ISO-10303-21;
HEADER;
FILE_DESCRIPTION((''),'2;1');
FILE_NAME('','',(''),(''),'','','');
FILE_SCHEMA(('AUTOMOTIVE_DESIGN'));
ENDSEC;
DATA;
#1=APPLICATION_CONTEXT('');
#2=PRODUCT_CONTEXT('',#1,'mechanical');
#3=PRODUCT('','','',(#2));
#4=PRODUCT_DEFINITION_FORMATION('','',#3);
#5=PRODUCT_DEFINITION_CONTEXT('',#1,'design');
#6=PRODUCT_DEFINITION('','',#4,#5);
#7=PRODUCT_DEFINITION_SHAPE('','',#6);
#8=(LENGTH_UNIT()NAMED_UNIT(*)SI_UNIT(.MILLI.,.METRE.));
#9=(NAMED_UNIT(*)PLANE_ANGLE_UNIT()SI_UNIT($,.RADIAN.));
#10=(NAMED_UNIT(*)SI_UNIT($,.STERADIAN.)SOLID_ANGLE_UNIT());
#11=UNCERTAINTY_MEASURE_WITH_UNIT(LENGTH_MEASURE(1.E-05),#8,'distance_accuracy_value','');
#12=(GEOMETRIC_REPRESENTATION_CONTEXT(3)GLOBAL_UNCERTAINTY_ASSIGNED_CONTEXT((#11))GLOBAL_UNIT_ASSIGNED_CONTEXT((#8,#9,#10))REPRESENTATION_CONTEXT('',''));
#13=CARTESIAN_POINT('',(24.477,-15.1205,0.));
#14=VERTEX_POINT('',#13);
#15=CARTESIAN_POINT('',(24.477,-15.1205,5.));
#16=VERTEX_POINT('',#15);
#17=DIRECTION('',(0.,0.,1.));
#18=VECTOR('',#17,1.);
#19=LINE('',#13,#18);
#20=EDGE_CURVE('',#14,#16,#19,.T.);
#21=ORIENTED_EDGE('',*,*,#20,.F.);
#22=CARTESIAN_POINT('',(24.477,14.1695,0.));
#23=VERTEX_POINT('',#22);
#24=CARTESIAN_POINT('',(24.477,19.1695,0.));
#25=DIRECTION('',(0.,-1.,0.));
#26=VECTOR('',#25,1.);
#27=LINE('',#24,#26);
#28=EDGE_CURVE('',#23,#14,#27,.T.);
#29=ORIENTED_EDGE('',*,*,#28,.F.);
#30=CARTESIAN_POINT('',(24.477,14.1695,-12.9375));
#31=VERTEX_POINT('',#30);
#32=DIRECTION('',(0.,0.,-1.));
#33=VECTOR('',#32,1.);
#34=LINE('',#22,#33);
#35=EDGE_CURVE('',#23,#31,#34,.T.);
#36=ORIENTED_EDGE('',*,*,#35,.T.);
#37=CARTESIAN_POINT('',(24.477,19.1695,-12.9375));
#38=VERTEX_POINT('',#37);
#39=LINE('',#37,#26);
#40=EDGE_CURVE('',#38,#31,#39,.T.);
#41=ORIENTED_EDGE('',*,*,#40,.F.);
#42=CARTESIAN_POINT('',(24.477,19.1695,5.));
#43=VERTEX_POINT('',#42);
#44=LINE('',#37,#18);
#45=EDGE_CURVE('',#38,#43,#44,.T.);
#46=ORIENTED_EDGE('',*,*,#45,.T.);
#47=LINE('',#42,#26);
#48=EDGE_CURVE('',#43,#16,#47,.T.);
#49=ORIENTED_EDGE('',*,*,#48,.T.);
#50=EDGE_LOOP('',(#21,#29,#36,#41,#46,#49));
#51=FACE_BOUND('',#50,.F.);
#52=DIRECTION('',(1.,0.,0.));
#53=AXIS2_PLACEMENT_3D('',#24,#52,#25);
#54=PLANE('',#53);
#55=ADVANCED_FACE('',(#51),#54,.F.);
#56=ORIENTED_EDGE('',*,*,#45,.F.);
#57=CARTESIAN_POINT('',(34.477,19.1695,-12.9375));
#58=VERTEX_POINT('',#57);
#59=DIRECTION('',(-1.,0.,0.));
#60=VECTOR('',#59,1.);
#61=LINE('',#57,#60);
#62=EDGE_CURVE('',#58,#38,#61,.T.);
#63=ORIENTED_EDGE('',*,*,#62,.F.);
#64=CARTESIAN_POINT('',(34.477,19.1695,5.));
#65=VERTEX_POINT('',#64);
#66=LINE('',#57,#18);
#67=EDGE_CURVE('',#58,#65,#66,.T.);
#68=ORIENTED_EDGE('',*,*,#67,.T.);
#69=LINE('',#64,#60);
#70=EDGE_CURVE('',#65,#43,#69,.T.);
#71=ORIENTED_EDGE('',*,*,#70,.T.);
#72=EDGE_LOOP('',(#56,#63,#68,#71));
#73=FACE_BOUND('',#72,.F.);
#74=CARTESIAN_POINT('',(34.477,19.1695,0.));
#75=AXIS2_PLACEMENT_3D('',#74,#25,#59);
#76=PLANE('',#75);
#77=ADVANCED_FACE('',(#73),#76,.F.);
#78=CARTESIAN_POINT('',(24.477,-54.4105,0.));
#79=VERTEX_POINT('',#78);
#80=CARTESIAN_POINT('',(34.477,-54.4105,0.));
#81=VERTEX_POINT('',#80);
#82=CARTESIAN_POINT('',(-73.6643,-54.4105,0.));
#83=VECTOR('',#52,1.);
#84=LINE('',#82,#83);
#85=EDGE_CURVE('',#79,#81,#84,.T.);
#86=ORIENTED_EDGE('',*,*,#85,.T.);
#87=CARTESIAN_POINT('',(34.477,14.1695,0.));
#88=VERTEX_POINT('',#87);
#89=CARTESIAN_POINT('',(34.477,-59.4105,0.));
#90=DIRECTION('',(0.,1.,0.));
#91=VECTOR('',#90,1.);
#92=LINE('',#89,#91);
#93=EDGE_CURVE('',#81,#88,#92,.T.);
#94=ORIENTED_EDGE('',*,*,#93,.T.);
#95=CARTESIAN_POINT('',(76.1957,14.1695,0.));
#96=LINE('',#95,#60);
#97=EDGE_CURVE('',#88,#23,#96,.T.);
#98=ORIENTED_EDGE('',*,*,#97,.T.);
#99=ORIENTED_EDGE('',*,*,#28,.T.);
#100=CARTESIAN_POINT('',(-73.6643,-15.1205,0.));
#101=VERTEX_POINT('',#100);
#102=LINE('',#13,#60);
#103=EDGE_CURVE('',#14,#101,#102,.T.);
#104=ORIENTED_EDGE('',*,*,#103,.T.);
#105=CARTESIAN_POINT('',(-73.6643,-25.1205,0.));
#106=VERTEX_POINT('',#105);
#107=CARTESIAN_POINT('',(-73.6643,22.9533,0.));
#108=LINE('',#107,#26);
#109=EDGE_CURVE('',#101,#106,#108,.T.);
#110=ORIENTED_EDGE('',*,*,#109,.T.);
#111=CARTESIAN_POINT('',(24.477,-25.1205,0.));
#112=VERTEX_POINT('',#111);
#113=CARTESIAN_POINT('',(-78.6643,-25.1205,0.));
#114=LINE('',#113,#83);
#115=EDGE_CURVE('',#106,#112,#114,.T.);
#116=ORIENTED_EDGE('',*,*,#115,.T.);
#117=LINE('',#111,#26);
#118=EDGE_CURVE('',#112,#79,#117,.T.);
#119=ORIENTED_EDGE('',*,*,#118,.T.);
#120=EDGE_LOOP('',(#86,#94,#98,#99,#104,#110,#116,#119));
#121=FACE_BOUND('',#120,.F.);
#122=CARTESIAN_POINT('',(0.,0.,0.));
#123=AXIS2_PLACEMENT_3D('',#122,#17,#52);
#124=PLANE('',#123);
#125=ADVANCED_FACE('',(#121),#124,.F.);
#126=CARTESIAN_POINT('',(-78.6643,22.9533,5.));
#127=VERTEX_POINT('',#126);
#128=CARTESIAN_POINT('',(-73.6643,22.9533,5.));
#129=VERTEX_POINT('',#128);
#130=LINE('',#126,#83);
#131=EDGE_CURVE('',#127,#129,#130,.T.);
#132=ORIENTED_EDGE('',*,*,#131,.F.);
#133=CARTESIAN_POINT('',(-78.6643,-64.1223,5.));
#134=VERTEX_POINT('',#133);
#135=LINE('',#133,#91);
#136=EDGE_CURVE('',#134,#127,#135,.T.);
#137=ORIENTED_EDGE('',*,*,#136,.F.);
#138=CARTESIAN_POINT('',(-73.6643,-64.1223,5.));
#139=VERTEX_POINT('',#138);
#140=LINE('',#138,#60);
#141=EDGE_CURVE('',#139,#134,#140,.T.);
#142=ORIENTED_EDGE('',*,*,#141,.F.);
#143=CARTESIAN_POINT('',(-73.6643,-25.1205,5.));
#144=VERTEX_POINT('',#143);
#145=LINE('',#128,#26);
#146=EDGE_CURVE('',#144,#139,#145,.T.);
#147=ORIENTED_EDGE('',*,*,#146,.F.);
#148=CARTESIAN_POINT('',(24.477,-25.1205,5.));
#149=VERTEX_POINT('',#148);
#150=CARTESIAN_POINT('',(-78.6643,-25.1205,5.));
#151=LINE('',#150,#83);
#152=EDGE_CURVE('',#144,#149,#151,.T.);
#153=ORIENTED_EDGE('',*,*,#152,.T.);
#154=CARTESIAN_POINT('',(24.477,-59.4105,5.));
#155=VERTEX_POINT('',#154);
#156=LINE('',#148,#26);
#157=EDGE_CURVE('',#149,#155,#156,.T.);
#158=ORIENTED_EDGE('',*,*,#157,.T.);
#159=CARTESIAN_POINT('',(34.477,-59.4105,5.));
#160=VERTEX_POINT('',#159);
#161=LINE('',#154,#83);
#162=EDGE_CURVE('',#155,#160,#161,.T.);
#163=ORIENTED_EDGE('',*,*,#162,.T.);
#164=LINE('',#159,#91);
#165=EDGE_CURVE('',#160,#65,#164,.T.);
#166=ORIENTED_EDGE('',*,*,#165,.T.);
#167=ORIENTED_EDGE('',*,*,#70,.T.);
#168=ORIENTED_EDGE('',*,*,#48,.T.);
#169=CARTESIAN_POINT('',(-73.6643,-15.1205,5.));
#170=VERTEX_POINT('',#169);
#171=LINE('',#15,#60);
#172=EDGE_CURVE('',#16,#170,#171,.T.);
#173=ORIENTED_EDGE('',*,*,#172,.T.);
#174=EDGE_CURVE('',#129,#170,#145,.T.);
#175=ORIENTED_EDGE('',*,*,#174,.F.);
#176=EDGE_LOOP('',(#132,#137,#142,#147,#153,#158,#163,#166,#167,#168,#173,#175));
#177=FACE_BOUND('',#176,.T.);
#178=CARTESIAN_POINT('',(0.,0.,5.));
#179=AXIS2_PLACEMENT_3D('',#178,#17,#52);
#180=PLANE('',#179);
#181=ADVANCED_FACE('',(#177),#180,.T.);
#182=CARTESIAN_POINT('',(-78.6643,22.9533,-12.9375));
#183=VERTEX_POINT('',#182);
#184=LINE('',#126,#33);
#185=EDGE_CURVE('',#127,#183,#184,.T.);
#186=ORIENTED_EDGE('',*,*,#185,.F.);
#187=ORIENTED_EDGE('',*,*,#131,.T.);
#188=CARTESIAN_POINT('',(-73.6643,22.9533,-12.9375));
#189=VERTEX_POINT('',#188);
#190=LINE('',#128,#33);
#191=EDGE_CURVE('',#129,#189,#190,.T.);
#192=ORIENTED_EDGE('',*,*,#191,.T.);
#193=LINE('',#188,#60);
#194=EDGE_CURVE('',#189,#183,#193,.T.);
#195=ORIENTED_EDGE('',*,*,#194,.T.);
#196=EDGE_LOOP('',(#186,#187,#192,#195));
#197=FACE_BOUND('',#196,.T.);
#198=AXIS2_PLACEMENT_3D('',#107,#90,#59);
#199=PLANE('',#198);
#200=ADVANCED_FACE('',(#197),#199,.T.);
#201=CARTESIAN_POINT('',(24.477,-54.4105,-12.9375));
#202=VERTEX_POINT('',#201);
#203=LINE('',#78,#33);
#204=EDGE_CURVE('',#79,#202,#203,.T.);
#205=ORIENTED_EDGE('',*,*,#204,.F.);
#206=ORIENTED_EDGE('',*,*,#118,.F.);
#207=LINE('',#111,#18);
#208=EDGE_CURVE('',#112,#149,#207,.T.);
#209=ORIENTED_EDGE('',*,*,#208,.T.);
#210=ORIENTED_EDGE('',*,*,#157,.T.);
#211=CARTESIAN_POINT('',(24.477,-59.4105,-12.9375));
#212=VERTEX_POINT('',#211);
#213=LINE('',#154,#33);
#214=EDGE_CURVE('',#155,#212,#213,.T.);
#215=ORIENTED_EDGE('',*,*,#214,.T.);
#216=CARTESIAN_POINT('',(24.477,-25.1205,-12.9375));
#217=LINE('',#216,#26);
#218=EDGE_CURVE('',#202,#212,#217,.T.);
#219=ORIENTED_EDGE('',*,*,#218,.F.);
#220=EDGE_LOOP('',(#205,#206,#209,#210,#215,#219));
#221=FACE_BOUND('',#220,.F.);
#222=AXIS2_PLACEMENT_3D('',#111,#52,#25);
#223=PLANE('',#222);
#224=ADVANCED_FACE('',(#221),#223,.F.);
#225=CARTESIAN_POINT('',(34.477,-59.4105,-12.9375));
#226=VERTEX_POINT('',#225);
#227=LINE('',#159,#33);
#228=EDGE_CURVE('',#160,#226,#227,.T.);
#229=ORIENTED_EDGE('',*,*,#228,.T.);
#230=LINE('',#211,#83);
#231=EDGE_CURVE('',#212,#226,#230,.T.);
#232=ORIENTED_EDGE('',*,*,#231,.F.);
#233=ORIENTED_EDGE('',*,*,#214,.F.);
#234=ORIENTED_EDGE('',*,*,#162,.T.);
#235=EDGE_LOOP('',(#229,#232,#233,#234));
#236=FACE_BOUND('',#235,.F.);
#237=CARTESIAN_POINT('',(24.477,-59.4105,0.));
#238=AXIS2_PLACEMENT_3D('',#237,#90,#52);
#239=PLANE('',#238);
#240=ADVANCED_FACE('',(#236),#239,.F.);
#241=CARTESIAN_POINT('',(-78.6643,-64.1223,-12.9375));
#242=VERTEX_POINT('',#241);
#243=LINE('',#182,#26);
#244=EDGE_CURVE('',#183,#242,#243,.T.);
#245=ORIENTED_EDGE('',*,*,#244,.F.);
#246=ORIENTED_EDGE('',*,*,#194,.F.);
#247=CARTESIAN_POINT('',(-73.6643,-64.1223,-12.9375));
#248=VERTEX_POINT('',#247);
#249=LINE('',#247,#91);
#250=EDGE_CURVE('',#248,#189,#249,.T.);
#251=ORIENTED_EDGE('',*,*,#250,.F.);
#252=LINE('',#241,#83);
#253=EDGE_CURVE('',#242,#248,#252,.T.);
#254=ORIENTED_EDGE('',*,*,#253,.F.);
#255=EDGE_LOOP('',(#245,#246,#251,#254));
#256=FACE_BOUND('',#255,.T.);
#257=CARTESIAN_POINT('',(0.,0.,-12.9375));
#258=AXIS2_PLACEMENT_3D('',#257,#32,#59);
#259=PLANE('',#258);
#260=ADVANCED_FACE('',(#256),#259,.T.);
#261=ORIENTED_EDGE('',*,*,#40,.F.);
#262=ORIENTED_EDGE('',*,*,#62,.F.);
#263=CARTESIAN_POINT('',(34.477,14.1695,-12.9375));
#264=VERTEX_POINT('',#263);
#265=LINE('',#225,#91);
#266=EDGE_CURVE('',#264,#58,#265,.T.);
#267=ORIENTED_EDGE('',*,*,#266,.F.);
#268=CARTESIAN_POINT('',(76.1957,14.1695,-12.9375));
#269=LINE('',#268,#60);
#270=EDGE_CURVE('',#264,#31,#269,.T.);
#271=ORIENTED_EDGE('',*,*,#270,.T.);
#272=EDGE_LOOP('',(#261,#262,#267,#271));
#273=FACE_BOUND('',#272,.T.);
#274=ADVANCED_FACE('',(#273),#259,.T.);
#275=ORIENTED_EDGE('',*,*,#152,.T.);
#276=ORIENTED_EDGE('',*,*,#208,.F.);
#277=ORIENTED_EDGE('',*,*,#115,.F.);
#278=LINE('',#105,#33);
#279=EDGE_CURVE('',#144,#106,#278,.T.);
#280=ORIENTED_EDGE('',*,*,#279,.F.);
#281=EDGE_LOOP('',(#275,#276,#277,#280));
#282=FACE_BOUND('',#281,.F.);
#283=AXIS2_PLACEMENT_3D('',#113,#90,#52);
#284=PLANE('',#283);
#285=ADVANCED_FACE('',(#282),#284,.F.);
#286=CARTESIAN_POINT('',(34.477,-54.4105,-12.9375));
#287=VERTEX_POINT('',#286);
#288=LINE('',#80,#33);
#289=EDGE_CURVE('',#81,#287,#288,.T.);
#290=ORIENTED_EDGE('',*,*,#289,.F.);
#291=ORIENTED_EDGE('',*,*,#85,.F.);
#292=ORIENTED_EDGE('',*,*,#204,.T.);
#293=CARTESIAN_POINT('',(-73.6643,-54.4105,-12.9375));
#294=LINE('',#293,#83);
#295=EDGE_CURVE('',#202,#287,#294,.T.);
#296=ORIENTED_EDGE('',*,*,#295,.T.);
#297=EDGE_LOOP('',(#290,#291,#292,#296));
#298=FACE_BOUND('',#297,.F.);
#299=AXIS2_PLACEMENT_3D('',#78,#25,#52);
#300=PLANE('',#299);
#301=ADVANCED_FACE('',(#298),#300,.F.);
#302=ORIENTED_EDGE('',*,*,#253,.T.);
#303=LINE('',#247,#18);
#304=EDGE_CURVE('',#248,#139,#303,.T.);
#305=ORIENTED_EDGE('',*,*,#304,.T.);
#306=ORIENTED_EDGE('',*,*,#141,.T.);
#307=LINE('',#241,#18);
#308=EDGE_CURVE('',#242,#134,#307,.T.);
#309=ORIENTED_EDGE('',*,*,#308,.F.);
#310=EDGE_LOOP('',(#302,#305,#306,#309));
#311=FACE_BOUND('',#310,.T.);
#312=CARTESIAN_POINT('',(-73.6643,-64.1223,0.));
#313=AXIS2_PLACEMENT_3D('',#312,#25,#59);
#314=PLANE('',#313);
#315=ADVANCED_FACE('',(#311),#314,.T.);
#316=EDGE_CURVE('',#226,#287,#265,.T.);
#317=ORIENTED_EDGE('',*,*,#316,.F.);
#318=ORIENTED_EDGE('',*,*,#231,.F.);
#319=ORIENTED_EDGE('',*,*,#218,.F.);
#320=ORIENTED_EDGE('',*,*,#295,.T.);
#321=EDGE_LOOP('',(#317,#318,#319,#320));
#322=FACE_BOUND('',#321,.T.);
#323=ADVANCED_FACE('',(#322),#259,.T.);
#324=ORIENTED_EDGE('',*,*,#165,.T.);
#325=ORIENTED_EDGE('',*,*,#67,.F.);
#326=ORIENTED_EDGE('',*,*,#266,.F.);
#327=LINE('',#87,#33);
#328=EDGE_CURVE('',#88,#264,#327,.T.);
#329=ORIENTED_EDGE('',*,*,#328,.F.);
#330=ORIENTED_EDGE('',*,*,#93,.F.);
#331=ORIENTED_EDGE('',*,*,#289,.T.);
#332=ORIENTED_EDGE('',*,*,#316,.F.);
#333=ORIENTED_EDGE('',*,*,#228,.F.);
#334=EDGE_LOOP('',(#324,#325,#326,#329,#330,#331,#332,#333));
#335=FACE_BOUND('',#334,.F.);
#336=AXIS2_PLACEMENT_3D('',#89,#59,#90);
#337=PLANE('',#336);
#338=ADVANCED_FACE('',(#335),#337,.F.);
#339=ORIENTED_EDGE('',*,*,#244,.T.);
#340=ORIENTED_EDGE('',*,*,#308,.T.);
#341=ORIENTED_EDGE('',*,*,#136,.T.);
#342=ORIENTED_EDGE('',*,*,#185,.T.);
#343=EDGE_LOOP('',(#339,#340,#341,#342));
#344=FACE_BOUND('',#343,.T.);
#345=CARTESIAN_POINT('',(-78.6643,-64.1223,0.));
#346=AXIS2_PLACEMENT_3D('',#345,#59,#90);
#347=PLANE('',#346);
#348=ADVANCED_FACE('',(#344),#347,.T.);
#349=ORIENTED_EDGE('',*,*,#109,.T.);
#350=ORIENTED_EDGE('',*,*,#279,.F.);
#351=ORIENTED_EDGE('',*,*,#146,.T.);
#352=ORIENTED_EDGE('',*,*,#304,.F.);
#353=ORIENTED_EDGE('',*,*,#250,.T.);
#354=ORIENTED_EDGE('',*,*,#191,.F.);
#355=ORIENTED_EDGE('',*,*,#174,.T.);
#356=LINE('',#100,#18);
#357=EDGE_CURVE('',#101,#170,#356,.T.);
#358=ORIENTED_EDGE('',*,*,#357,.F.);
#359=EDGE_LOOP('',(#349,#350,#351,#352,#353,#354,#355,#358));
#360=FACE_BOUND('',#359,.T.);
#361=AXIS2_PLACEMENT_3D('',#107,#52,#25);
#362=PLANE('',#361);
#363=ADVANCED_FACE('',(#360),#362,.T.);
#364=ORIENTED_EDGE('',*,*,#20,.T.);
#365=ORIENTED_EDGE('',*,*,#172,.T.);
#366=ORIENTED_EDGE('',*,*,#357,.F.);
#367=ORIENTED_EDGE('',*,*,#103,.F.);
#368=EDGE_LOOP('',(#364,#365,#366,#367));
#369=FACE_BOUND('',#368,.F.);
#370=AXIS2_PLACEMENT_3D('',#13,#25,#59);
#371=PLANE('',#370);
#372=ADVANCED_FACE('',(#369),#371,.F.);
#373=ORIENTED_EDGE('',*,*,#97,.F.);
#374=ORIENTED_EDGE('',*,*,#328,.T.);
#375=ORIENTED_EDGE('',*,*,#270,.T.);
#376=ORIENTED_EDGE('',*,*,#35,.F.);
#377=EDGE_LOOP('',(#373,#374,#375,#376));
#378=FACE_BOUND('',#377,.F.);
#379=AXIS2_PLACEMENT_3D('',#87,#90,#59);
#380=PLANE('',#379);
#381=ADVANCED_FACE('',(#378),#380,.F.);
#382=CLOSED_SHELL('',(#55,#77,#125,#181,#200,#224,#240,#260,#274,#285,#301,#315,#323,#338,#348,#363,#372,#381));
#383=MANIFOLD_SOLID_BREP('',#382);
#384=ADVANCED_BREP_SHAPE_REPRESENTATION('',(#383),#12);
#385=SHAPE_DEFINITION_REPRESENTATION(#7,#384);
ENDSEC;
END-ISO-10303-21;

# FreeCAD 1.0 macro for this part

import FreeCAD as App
import Part
import Sketcher


def add_polygon(sketch, points):
    """Adds a closed chain of lines whose ends are joined by coincident constraints."""
    first, n = sketch.GeometryCount, len(points)
    for a, b in zip(points, points[1:] + points[:1]):
        sketch.addGeometry(Part.LineSegment(App.Vector(*a, 0), App.Vector(*b, 0)), False)
    for i in range(n):
        sketch.addConstraint(Sketcher.Constraint("Coincident", first + i, 2, first + (i + 1) % n, 1))

doc = App.newDocument("Part")
body = doc.addObject("PartDesign::Body", "Body")

sketch1 = body.newObject("Sketcher::SketchObject", "Sketch")
sketch1.AttachmentSupport = (doc.getObject("XY_Plane"), [""])
sketch1.MapMode = "FlatFace"
add_polygon(sketch1, [(34, -59), (34, 19), (24, 19), (24, -15), (-79, -15), (-79, -25), (24, -25), (24, -59)])
sketch1.addConstraint([
    Sketcher.Constraint("Vertical", 0),
    Sketcher.Constraint("Horizontal", 1),
    Sketcher.Constraint("Vertical", 2),
    Sketcher.Constraint("Horizontal", 3),
    Sketcher.Constraint("Vertical", 4),
    Sketcher.Constraint("Horizontal", 5),
    Sketcher.Constraint("Vertical", 6),
    Sketcher.Constraint("Horizontal", 7),
    Sketcher.Constraint("Vertical", 2, 2, 5, 2),
    Sketcher.Constraint("Equal", 7, 4),
    Sketcher.Constraint("Equal", 2, 6),
    Sketcher.Constraint("DistanceX", 1, 2, 1, 1, 10.0),
    Sketcher.Constraint("DistanceY", 0, 1, 0, 2, 78.58),
    Sketcher.Constraint("DistanceX", 3, 2, 3, 1, 103.1413),
    Sketcher.Constraint("DistanceX", -1, 1, 0, 2, 34.477),
    Sketcher.Constraint("DistanceY", -1, 1, 0, 2, 19.1695),
])
pad1 = body.newObject("PartDesign::Pad", "Pad")
pad1.Profile = sketch1
pad1.Length = 5

sketch2 = body.newObject("Sketcher::SketchObject", "Sketch001")
sketch2.AttachmentSupport = (doc.getObject("XY_Plane"), [""])
sketch2.MapMode = "FlatFace"
add_polygon(sketch2, [(34, 19), (34, 14), (24, 14), (24, 19)])
add_polygon(sketch2, [(24, -54), (34, -54), (34, -59), (24, -59)])
add_polygon(sketch2, [(-74, 23), (-74, -64), (-79, -64), (-79, 23)])
sketch2.addConstraint([
    Sketcher.Constraint("Vertical", 0),
    Sketcher.Constraint("Horizontal", 1),
    Sketcher.Constraint("Vertical", 2),
    Sketcher.Constraint("Horizontal", 3),
    Sketcher.Constraint("Horizontal", 4),
    Sketcher.Constraint("Vertical", 5),
    Sketcher.Constraint("Horizontal", 6),
    Sketcher.Constraint("Vertical", 7),
    Sketcher.Constraint("Vertical", 8),
    Sketcher.Constraint("Horizontal", 9),
    Sketcher.Constraint("Vertical", 10),
    Sketcher.Constraint("Horizontal", 11),
    Sketcher.Constraint("Vertical", 3, 2, 4, 2),
    Sketcher.Constraint("Vertical", 2, 2, 6, 2),
    Sketcher.Constraint("Equal", 11, 0),
    Sketcher.Constraint("Equal", 2, 5),
    Sketcher.Constraint("DistanceX", 1, 2, 1, 1, 10.0),
    Sketcher.Constraint("DistanceX", 9, 2, 9, 1, 5.0),
    Sketcher.Constraint("DistanceY", 4, 2, 0, 2, 68.58),
    Sketcher.Constraint("DistanceY", 8, 2, 8, 1, 87.0756),
    Sketcher.Constraint("DistanceX", -1, 1, 0, 2, 34.477),
    Sketcher.Constraint("DistanceY", -1, 1, 0, 2, 14.1695),
    Sketcher.Constraint("DistanceX", 8, 2, -1, 1, 73.6643),
    Sketcher.Constraint("DistanceY", 8, 2, -1, 1, 64.1223),
])
pad2 = body.newObject("PartDesign::Pad", "Pad001")
pad2.Profile = sketch2
pad2.Length = 12.9375
pad2.Reversed = True

sketch3 = body.newObject("Sketcher::SketchObject", "Sketch002")
sketch3.AttachmentSupport = (doc.getObject("XY_Plane"), [""])
sketch3.MapMode = "FlatFace"
add_polygon(sketch3, [(-79, 23), (-79, -64), (-74, -64), (-74, 23)])
sketch3.addConstraint([
    Sketcher.Constraint("Vertical", 0),
    Sketcher.Constraint("Horizontal", 1),
    Sketcher.Constraint("Vertical", 2),
    Sketcher.Constraint("Horizontal", 3),
    Sketcher.Constraint("DistanceX", 1, 1, 1, 2, 5.0),
    Sketcher.Constraint("DistanceY", 0, 2, 0, 1, 87.0756),
    Sketcher.Constraint("DistanceX", 0, 2, -1, 1, 78.6643),
    Sketcher.Constraint("DistanceY", 0, 2, -1, 1, 64.1223),
])
pad3 = body.newObject("PartDesign::Pad", "Pad002")
pad3.Profile = sketch3
pad3.Length = 5

doc.recompute()
